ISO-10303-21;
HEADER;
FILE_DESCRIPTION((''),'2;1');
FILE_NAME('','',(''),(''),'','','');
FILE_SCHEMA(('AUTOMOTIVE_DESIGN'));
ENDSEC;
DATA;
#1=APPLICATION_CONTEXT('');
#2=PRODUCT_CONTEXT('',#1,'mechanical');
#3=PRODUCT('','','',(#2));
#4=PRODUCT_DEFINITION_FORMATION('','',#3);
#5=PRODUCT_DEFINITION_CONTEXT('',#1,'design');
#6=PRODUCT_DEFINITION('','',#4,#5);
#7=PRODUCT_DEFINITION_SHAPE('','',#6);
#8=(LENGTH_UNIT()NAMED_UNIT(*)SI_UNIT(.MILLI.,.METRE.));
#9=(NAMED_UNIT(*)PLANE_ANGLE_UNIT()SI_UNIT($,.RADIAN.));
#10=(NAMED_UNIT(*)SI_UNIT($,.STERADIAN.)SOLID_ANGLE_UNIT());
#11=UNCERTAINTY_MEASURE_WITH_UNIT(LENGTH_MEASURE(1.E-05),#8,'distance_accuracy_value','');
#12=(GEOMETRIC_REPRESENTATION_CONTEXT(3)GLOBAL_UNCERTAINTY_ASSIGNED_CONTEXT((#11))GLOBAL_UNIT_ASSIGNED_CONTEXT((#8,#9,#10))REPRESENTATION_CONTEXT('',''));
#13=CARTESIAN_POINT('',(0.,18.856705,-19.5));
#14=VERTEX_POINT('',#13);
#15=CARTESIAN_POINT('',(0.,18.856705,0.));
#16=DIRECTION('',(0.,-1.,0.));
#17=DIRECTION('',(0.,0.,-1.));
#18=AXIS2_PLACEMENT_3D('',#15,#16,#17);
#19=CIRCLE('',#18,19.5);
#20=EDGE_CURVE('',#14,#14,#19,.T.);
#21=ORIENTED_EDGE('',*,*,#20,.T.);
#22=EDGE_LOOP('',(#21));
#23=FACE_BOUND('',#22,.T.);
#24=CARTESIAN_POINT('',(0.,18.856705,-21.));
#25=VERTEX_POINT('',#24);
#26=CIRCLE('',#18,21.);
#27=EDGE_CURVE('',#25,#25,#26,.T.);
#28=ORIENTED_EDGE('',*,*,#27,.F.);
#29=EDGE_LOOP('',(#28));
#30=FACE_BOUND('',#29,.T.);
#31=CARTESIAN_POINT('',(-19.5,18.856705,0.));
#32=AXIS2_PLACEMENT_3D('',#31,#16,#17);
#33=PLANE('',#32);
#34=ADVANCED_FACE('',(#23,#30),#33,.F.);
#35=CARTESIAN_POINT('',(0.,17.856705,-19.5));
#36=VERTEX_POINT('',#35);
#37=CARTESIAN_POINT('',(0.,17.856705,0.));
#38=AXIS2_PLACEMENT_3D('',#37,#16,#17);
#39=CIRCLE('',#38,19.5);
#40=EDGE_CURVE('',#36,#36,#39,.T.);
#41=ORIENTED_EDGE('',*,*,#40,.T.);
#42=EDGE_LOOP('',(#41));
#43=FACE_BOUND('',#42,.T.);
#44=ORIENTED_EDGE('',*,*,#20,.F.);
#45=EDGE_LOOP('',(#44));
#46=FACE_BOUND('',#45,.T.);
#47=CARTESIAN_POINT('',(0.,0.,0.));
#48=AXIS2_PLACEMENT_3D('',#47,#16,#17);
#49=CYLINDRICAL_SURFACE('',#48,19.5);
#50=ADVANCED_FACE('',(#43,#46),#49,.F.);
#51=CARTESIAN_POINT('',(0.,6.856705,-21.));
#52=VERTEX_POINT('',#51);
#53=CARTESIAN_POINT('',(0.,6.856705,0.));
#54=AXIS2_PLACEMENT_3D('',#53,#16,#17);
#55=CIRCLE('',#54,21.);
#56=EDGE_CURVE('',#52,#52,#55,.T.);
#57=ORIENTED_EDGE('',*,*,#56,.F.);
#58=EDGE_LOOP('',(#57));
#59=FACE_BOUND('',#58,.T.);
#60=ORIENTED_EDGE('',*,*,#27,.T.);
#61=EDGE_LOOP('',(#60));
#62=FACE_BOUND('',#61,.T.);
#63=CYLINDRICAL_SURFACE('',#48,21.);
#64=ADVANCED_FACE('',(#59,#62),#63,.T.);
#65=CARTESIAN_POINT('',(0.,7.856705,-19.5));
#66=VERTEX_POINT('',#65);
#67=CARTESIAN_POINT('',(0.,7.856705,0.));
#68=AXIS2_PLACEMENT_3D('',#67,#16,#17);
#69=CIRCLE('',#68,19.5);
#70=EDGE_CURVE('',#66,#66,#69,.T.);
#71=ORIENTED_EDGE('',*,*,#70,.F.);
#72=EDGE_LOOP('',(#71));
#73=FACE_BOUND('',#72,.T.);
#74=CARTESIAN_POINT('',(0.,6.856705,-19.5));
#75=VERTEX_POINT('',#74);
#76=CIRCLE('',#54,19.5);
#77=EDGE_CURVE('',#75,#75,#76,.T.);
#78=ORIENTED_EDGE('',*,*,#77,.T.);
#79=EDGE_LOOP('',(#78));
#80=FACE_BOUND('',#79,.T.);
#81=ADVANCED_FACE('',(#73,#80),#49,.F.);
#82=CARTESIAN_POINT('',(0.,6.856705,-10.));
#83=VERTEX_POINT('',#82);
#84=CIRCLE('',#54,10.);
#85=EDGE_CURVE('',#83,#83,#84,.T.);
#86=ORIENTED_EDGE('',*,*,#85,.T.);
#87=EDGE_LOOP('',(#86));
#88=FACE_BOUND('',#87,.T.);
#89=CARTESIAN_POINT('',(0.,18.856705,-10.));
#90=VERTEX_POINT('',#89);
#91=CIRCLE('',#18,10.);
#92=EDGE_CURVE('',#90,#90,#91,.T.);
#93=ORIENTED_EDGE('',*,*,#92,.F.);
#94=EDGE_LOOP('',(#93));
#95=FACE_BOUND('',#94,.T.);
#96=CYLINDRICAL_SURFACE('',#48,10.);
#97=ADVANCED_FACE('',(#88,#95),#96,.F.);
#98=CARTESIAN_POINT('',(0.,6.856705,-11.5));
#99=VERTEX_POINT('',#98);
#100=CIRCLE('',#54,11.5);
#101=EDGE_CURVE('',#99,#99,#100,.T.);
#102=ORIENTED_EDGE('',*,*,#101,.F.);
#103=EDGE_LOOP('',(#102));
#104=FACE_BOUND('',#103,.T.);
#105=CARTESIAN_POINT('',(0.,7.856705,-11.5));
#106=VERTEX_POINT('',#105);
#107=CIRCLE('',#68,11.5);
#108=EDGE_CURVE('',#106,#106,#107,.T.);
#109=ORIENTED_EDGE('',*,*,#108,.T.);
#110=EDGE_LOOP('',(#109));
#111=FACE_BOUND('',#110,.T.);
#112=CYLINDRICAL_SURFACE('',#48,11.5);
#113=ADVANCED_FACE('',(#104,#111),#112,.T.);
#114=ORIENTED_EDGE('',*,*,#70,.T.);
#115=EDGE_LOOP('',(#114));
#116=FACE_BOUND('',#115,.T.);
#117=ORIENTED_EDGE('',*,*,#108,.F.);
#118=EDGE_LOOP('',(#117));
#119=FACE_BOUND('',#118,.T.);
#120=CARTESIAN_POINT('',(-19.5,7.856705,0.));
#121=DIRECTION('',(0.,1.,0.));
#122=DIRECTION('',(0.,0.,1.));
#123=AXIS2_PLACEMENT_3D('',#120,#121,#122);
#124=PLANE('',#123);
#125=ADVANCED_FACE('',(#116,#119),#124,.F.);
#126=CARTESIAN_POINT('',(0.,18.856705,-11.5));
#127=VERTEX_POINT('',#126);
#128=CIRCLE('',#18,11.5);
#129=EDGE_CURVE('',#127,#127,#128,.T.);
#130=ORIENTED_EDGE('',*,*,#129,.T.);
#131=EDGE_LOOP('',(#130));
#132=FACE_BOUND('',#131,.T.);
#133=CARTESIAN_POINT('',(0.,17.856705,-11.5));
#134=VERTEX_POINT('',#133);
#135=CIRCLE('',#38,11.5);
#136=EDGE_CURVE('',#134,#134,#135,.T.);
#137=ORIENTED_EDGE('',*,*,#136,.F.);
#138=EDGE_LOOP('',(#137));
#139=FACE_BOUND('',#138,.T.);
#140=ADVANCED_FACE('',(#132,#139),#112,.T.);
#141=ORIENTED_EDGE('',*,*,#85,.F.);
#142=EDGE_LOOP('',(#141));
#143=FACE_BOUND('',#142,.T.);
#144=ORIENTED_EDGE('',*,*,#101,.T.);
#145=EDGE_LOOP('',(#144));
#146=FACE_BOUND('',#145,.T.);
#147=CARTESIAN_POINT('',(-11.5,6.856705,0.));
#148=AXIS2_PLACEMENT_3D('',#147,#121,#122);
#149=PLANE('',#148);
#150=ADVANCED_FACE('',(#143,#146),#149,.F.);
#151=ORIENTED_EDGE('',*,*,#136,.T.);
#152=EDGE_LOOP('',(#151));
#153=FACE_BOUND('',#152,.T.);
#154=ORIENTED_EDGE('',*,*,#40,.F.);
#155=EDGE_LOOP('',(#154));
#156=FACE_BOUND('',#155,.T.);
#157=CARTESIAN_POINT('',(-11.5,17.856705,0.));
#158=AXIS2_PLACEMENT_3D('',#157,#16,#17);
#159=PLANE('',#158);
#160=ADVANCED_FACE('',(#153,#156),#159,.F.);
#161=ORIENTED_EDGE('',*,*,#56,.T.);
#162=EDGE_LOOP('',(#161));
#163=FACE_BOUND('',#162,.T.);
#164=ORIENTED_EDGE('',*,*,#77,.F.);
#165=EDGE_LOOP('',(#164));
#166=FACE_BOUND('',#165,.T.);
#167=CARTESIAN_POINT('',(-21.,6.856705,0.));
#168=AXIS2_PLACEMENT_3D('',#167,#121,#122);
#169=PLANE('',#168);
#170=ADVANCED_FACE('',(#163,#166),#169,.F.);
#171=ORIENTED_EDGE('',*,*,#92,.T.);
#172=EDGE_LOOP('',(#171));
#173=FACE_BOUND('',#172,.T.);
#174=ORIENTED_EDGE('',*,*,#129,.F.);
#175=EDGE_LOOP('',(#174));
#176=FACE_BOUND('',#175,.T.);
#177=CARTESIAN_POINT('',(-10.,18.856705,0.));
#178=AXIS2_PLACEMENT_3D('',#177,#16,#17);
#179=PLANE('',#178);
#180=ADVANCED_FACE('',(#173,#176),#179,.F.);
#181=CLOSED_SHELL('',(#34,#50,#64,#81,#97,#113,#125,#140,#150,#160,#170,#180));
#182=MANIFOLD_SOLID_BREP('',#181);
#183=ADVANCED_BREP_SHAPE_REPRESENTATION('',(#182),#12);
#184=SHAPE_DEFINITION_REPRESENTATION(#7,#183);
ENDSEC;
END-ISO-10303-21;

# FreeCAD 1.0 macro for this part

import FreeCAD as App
import Part
import Sketcher

V = App.Vector


def add_polygon(sketch, points):
    """Adds a closed chain of lines whose ends are joined by coincident constraints."""
    first, n = sketch.GeometryCount, len(points)
    for a, b in zip(points, points[1:] + points[:1]):
        sketch.addGeometry(Part.LineSegment(App.Vector(*a, 0), App.Vector(*b, 0)), False)
    for i in range(n):
        sketch.addConstraint(Sketcher.Constraint("Coincident", first + i, 2, first + (i + 1) % n, 1))

doc = App.newDocument("Part")
body = doc.addObject("PartDesign::Body", "Body")

sketch1 = body.newObject("Sketcher::SketchObject", "Sketch")
sketch1.AttachmentSupport = (doc.getObject("XY_Plane"), [""])
sketch1.MapMode = "FlatFace"
add_polygon(sketch1, [(-10, 6.9), (-10, 18.9), (-11.5, 18.9), (-11.5, 17.9), (-19.5, 17.9), (-19.5, 18.9), (-21, 18.9), (-21, 6.9), (-19.5, 6.9), (-19.5, 7.9), (-11.5, 7.9), (-11.5, 6.9)])
sketch1.addConstraint(Sketcher.Constraint("Vertical", 0))
sketch1.addConstraint(Sketcher.Constraint("Horizontal", 1))
sketch1.addConstraint(Sketcher.Constraint("Vertical", 2))
sketch1.addConstraint(Sketcher.Constraint("Horizontal", 3))
sketch1.addConstraint(Sketcher.Constraint("Vertical", 4))
sketch1.addConstraint(Sketcher.Constraint("Horizontal", 5))
sketch1.addConstraint(Sketcher.Constraint("Vertical", 6))
sketch1.addConstraint(Sketcher.Constraint("Horizontal", 7))
sketch1.addConstraint(Sketcher.Constraint("Vertical", 8))
sketch1.addConstraint(Sketcher.Constraint("Horizontal", 9))
sketch1.addConstraint(Sketcher.Constraint("Vertical", 10))
sketch1.addConstraint(Sketcher.Constraint("Horizontal", 11))
sketch1.addConstraint(Sketcher.Constraint("Horizontal", 1, 2, 4, 2))
sketch1.addConstraint(Sketcher.Constraint("Horizontal", 7, 2, 10, 2))
sketch1.addConstraint(Sketcher.Constraint("Vertical", 4, 2, 7, 2))
sketch1.addConstraint(Sketcher.Constraint("Vertical", 2, 2, 9, 2))
sketch1.addConstraint(Sketcher.Constraint("Equal", 1, 5))
sketch1.addConstraint(Sketcher.Constraint("Equal", 4, 8))
sketch1.addConstraint(Sketcher.Constraint("DistanceX", 3, 2, 3, 1, 8.0))
sketch1.addConstraint(Sketcher.Constraint("DistanceY", 0, 1, 0, 2, 12.0))
sketch1.addConstraint(Sketcher.Constraint("DistanceY", 2, 2, 2, 1, 1.0))
sketch1.addConstraint(Sketcher.Constraint("DistanceX", 1, 2, 1, 1, 1.5))
sketch1.addConstraint(Sketcher.Constraint("DistanceX", 0, 2, -1, 1, 10.0))
sketch1.addConstraint(Sketcher.Constraint("DistanceY", -1, 1, 0, 2, 18.856705))
revolution = body.newObject("PartDesign::Revolution", "Revolution")
revolution.Profile = sketch1
revolution.ReferenceAxis = (sketch1, ["V_Axis"])
revolution.Angle = 360

doc.recompute()
